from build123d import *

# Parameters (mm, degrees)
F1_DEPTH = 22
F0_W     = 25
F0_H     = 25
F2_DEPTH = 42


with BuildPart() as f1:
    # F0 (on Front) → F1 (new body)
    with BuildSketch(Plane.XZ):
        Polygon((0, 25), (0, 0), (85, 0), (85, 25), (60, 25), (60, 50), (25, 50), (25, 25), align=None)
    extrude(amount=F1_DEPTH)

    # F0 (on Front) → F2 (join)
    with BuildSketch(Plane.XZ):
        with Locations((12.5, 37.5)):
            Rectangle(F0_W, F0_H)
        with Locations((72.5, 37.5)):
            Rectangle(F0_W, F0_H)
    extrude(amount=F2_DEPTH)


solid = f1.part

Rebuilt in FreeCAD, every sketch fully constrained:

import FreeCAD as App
import Part
import Sketcher
from FreeCAD import Vector
Q = App.Units.Quantity

doc = App.newDocument("Part")
body = doc.addObject("PartDesign::Body", "Body")

sketch1 = doc.addObject("Sketcher::SketchObject", "Sketch")
body.addObject(sketch1)
sketch1.AttachmentSupport = (doc.XZ_Plane, [""])
sketch1.MapMode = "FlatFace"
sketch1.addGeometry([
    Part.LineSegment(Vector(0, 25, 0), Vector(0, 0, 0)),
    Part.LineSegment(Vector(0, 0, 0), Vector(85, 0, 0)),
    Part.LineSegment(Vector(85, 0, 0), Vector(85, 25, 0)),
    Part.LineSegment(Vector(85, 25, 0), Vector(60, 25, 0)),
    Part.LineSegment(Vector(60, 25, 0), Vector(60, 50, 0)),
    Part.LineSegment(Vector(60, 50, 0), Vector(25, 50, 0)),
    Part.LineSegment(Vector(25, 50, 0), Vector(25, 25, 0)),
    Part.LineSegment(Vector(25, 25, 0), Vector(0, 25, 0)),
], False)
sketch1.addConstraint([
    Sketcher.Constraint("Coincident", 0, 2, 1, 1),
    Sketcher.Constraint("Coincident", 1, 2, 2, 1),
    Sketcher.Constraint("Coincident", 2, 2, 3, 1),
    Sketcher.Constraint("Coincident", 3, 2, 4, 1),
    Sketcher.Constraint("Coincident", 4, 2, 5, 1),
    Sketcher.Constraint("Coincident", 5, 2, 6, 1),
    Sketcher.Constraint("Coincident", 6, 2, 7, 1),
    Sketcher.Constraint("Coincident", 7, 2, 0, 1),
    Sketcher.Constraint("Vertical", 0),
    Sketcher.Constraint("Horizontal", 1),
    Sketcher.Constraint("Vertical", 2),
    Sketcher.Constraint("Horizontal", 3),
    Sketcher.Constraint("Vertical", 4),
    Sketcher.Constraint("Horizontal", 5),
    Sketcher.Constraint("Vertical", 6),
    Sketcher.Constraint("Horizontal", 7),
    Sketcher.Constraint("Coincident", 0, 2, -1, 1),
    Sketcher.Constraint("Horizontal", 3, 2, 6, 2),
    Sketcher.Constraint("Equal", 3, 7),
    Sketcher.Constraint("Equal", 7, 0),
    Sketcher.Constraint("Equal", 2, 4),
    Sketcher.Constraint("DistanceX", 1, 1, 1, 2, Q("85 mm")),
    Sketcher.Constraint("DistanceX", 3, 2, 3, 1, Q("25 mm")),
])
pad1 = doc.addObject("PartDesign::Pad", "Pad")
body.addObject(pad1)
pad1.Profile = sketch1
pad1.Length = 22

sketch2 = doc.addObject("Sketcher::SketchObject", "Sketch001")
body.addObject(sketch2)
sketch2.AttachmentSupport = (doc.XZ_Plane, [""])
sketch2.MapMode = "FlatFace"
sketch2.addGeometry([
    Part.LineSegment(Vector(0, 50, 0), Vector(0, 25, 0)),
    Part.LineSegment(Vector(0, 25, 0), Vector(25, 25, 0)),
    Part.LineSegment(Vector(25, 25, 0), Vector(25, 50, 0)),
    Part.LineSegment(Vector(25, 50, 0), Vector(0, 50, 0)),
    Part.LineSegment(Vector(60, 50, 0), Vector(60, 25, 0)),
    Part.LineSegment(Vector(60, 25, 0), Vector(85, 25, 0)),
    Part.LineSegment(Vector(85, 25, 0), Vector(85, 50, 0)),
    Part.LineSegment(Vector(85, 50, 0), Vector(60, 50, 0)),
], False)
sketch2.addConstraint([
    Sketcher.Constraint("Coincident", 0, 2, 1, 1),
    Sketcher.Constraint("Coincident", 1, 2, 2, 1),
    Sketcher.Constraint("Coincident", 2, 2, 3, 1),
    Sketcher.Constraint("Coincident", 3, 2, 0, 1),
    Sketcher.Constraint("Coincident", 4, 2, 5, 1),
    Sketcher.Constraint("Coincident", 5, 2, 6, 1),
    Sketcher.Constraint("Coincident", 6, 2, 7, 1),
    Sketcher.Constraint("Coincident", 7, 2, 4, 1),
    Sketcher.Constraint("Vertical", 0),
    Sketcher.Constraint("Horizontal", 1),
    Sketcher.Constraint("Vertical", 2),
    Sketcher.Constraint("Horizontal", 3),
    Sketcher.Constraint("Vertical", 4),
    Sketcher.Constraint("Horizontal", 5),
    Sketcher.Constraint("Vertical", 6),
    Sketcher.Constraint("Horizontal", 7),
    Sketcher.Constraint("PointOnObject", 0, 2, -2),
    Sketcher.Constraint("Horizontal", 1, 2, 4, 2),
    Sketcher.Constraint("Horizontal", 3, 2, 6, 2),
    Sketcher.Constraint("Equal", 3, 5),
    Sketcher.Constraint("Equal", 7, 0),
    Sketcher.Constraint("DistanceX", 1, 1, 1, 2, Q("25 mm")),
    Sketcher.Constraint("DistanceY", -1, 1, 0, 2, Q("25 mm")),
    Sketcher.Constraint("DistanceX", -1, 1, 4, 2, Q("60 mm")),
])
pad2 = doc.addObject("PartDesign::Pad", "Pad001")
body.addObject(pad2)
pad2.Profile = sketch2
pad2.Length = 42

doc.recompute()
